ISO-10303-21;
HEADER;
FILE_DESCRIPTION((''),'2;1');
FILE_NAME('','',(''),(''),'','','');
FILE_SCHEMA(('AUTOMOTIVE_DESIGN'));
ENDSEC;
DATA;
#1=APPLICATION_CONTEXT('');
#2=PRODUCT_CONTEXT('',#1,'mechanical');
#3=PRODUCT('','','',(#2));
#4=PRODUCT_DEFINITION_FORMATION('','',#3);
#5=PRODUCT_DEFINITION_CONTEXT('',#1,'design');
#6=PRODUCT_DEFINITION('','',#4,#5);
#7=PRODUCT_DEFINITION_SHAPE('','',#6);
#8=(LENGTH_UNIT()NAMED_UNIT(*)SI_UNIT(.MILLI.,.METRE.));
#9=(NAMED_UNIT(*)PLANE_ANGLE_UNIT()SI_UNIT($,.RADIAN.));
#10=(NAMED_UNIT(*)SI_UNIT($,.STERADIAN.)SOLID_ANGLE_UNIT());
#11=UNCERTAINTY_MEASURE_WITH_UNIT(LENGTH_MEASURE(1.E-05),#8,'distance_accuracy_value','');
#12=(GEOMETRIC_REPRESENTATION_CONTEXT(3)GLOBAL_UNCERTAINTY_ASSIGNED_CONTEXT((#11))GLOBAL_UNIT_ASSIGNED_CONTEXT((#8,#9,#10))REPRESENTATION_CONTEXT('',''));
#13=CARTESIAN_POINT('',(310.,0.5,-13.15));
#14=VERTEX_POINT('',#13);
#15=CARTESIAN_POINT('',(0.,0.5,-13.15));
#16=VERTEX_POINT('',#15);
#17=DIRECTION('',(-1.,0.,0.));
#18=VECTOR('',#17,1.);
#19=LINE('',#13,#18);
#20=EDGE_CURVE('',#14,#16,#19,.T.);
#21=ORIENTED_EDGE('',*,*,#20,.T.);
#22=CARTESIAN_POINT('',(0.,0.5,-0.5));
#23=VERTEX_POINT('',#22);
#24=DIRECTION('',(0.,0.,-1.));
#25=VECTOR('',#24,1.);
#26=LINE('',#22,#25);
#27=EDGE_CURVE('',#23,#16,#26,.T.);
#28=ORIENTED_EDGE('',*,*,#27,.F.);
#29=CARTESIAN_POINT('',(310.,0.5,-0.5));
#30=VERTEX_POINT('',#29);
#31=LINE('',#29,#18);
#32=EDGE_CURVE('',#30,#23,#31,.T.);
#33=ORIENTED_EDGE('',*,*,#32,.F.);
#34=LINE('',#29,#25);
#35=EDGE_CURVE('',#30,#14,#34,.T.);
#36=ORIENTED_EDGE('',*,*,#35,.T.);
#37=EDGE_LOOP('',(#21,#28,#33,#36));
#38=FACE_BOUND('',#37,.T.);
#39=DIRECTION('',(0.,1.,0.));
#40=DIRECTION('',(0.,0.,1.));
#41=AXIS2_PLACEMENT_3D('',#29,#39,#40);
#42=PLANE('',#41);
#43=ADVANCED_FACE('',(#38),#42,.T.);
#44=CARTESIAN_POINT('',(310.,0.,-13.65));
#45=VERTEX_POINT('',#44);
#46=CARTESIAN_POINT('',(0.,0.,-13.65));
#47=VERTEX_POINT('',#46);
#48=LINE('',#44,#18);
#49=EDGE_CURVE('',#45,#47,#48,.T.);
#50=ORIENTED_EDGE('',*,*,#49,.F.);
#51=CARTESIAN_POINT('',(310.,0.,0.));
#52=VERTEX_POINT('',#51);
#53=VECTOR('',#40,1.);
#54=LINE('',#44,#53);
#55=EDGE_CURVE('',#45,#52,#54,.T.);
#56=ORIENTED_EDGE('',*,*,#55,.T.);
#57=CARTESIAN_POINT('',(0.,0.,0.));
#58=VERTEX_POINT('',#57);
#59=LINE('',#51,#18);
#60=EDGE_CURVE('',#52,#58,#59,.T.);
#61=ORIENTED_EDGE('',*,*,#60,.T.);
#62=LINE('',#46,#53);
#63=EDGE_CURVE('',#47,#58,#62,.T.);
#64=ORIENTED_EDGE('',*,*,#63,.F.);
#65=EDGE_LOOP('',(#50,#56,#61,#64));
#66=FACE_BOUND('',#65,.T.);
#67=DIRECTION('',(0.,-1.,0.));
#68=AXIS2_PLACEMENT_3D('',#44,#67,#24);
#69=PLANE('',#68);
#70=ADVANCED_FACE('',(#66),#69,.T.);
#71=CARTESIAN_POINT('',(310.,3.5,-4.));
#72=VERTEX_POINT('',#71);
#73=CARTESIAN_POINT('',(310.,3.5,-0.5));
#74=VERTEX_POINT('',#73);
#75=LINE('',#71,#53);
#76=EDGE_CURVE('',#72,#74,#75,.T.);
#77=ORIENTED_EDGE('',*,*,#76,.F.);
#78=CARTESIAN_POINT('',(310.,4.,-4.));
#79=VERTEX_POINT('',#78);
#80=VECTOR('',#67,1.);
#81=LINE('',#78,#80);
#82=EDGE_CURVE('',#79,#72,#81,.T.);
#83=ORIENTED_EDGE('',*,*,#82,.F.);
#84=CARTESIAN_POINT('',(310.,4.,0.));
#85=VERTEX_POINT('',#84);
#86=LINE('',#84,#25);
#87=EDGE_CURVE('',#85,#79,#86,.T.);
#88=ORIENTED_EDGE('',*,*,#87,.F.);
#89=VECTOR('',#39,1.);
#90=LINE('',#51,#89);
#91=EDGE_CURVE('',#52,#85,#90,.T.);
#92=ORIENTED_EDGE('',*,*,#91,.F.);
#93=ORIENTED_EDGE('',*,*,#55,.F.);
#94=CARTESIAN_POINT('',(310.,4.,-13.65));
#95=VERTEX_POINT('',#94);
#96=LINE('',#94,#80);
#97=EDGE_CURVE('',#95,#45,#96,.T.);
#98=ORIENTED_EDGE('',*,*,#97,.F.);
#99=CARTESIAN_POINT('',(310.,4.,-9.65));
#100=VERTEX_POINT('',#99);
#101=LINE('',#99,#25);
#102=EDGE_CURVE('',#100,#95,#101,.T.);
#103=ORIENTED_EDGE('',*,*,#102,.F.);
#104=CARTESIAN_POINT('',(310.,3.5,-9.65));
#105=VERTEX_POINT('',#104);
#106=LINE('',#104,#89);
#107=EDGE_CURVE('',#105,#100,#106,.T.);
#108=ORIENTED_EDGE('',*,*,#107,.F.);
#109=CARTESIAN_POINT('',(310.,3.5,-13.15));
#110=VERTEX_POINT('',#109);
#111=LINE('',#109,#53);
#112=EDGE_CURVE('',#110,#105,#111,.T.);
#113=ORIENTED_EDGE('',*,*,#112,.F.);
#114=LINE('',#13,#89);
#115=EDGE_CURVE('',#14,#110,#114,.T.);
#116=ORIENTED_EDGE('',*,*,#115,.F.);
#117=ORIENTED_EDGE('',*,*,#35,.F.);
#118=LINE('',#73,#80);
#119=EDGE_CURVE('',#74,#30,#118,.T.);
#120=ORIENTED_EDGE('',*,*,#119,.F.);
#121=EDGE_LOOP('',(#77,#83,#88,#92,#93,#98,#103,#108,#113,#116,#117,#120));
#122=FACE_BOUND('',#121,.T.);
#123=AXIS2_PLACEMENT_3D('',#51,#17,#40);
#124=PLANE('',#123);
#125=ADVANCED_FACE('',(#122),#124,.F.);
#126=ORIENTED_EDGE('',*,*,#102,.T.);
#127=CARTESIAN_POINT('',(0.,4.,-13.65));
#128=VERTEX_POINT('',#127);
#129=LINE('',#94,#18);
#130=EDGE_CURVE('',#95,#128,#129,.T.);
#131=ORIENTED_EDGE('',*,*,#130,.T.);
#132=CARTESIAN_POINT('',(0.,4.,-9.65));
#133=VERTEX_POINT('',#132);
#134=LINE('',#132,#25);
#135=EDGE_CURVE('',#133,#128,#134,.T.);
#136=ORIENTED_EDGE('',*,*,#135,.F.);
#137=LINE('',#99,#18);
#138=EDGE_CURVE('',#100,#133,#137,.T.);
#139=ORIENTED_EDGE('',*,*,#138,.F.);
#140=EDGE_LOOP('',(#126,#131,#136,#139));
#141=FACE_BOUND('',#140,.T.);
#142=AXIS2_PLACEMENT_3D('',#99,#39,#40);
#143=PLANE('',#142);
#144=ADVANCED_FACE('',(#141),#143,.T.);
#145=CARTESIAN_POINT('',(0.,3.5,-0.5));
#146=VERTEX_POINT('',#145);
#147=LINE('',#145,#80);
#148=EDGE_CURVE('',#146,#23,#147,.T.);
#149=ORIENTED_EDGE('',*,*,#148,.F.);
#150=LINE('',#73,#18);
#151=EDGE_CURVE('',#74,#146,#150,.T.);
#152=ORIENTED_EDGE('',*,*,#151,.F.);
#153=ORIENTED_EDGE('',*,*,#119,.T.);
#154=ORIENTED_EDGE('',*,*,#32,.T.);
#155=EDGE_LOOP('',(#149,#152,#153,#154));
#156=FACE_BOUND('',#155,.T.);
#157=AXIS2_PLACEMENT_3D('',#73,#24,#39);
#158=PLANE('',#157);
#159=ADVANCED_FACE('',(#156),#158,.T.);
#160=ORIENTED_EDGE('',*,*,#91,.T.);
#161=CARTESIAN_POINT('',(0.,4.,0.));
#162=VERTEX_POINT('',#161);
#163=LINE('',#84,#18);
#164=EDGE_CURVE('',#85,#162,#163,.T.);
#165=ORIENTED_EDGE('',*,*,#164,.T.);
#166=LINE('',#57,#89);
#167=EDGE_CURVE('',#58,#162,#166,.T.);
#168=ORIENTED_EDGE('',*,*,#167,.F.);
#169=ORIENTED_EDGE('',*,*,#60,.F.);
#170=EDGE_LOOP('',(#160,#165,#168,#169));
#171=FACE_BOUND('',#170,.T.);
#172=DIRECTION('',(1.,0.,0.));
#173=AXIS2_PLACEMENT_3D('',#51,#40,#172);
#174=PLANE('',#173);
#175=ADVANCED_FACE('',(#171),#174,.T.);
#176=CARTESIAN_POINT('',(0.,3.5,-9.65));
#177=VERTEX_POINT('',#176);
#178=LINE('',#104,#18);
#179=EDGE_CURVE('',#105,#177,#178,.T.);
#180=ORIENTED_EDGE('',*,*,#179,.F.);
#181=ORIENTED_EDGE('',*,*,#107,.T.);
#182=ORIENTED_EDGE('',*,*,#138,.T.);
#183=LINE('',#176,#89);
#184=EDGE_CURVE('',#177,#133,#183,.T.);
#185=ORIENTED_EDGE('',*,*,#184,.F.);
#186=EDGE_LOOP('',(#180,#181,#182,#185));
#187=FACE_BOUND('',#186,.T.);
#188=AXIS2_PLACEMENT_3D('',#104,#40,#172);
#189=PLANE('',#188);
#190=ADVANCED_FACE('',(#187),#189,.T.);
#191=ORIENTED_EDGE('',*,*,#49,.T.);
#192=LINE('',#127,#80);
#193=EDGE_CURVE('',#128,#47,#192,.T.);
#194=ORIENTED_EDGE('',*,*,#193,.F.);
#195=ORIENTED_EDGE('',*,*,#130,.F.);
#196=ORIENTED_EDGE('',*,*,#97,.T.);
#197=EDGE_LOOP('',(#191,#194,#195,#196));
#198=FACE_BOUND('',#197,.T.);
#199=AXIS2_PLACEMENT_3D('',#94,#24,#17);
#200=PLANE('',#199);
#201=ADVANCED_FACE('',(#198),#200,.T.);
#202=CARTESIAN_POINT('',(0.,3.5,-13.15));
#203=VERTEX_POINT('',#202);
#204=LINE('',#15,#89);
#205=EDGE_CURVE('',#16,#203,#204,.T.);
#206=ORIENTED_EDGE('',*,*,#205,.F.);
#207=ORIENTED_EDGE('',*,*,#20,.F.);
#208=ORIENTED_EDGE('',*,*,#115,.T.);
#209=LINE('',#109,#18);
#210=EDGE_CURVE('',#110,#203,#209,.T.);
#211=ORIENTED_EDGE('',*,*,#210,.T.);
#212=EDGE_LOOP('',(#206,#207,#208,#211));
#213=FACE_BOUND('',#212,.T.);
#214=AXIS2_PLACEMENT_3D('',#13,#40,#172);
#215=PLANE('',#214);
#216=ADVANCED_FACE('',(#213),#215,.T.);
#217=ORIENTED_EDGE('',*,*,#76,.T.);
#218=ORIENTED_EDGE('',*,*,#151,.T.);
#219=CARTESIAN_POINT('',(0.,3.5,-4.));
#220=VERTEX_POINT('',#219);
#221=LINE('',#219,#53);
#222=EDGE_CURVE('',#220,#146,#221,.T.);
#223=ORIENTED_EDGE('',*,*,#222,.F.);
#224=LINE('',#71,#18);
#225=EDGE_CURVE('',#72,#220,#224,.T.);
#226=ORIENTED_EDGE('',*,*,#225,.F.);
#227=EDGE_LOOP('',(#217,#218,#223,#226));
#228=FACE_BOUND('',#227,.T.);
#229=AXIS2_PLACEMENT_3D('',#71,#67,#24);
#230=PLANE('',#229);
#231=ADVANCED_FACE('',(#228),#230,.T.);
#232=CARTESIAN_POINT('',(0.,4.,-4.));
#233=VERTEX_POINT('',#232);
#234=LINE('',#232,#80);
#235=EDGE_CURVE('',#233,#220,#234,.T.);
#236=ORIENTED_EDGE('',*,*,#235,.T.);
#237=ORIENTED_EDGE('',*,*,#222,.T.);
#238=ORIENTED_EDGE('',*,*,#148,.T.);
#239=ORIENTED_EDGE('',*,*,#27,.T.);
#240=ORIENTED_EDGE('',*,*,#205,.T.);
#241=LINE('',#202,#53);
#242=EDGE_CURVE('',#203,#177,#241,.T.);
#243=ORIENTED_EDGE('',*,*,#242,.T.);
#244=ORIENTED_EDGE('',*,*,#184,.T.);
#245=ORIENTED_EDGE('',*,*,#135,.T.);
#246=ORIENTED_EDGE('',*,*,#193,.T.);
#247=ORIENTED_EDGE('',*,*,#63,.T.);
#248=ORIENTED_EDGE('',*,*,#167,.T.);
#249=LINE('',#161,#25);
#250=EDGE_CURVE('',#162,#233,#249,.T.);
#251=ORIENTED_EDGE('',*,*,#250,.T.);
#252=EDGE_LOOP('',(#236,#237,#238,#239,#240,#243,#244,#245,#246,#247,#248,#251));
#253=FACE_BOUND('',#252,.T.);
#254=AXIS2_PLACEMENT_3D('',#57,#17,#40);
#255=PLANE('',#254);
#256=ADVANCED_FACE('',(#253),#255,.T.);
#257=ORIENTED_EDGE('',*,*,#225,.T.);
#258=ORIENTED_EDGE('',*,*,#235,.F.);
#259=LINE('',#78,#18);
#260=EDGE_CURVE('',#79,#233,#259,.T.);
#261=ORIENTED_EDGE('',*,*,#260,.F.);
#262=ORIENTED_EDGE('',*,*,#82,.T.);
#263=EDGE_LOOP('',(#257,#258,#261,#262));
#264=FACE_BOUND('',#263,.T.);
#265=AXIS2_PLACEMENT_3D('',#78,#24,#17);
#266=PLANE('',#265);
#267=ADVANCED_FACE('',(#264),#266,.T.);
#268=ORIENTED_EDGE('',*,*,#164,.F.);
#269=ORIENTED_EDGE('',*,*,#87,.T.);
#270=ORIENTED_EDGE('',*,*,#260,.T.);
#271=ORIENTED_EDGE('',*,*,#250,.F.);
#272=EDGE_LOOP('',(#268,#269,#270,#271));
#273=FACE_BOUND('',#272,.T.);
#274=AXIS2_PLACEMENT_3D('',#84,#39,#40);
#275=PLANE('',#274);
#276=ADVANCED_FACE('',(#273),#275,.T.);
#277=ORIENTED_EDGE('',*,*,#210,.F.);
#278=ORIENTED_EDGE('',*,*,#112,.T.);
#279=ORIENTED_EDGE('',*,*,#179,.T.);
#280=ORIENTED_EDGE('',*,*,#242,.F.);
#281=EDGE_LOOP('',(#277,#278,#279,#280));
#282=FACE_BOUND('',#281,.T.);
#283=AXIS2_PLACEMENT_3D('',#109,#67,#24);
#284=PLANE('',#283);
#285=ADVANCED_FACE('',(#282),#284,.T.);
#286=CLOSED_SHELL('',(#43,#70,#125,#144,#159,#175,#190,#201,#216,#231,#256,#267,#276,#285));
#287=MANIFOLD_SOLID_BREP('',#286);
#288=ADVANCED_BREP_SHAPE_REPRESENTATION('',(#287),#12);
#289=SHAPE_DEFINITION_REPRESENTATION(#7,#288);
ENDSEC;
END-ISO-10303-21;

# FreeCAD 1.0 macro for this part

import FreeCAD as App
import Part
import Sketcher
from FreeCAD import Vector
Q = App.Units.Quantity

doc = App.newDocument("Part")
params = doc.addObject("Spreadsheet::Sheet", "Params")
for row, (alias, value) in enumerate([
    ("sketch1_width", "4 mm"),
    ("sketch1_width2", "3 mm"),
    ("sketch1_width3", "0.5 mm"),
    ("sketch1_height", "3.5 mm"),
    ("sketch1_height2", "12.65 mm"),
    ("pad1_length", "310 mm"),
], start=1):
    params.set(f"A{row}", alias)
    params.set(f"B{row}", "=" + value)
    params.setAlias(f"B{row}", alias)

body = doc.addObject("PartDesign::Body", "Body")

# Sketch on YZ plane
sketch1 = body.newObject("Sketcher::SketchObject", "Sketch")
sketch1.AttachmentSupport = (doc.getObject("YZ_Plane"), [""])
sketch1.MapMode = "FlatFace"
sketch1.addGeometry([
    Part.LineSegment(Vector(0, 0, 0), Vector(4, 0, 0)),  # 0
    Part.LineSegment(Vector(4, 0, 0), Vector(4, -4, 0)),  # 1
    Part.LineSegment(Vector(4, -4, 0), Vector(3.5, -4, 0)),  # 2
    Part.LineSegment(Vector(3.5, -4, 0), Vector(3.5, -0.5, 0)),  # 3
    Part.LineSegment(Vector(3.5, -0.5, 0), Vector(0.5, -0.5, 0)),  # 4
    Part.LineSegment(Vector(0.5, -0.5, 0), Vector(0.5, -13.2, 0)),  # 5
    Part.LineSegment(Vector(0.5, -13.2, 0), Vector(3.5, -13.2, 0)),  # 6
    Part.LineSegment(Vector(3.5, -13.2, 0), Vector(3.5, -9.7, 0)),  # 7
    Part.LineSegment(Vector(3.5, -9.7, 0), Vector(4, -9.7, 0)),  # 8
    Part.LineSegment(Vector(4, -9.7, 0), Vector(4, -13.7, 0)),  # 9
    Part.LineSegment(Vector(4, -13.7, 0), Vector(0, -13.7, 0)),  # 10
    Part.LineSegment(Vector(0, -13.7, 0), Vector(0, 0, 0)),  # 11
], False)
sketch1.addConstraint([
    Sketcher.Constraint("Coincident", 0, 2, 1, 1),
    Sketcher.Constraint("Coincident", 1, 2, 2, 1),
    Sketcher.Constraint("Coincident", 2, 2, 3, 1),
    Sketcher.Constraint("Coincident", 3, 2, 4, 1),
    Sketcher.Constraint("Coincident", 4, 2, 5, 1),
    Sketcher.Constraint("Coincident", 5, 2, 6, 1),
    Sketcher.Constraint("Coincident", 6, 2, 7, 1),
    Sketcher.Constraint("Coincident", 7, 2, 8, 1),
    Sketcher.Constraint("Coincident", 8, 2, 9, 1),
    Sketcher.Constraint("Coincident", 9, 2, 10, 1),
    Sketcher.Constraint("Coincident", 10, 2, 11, 1),
    Sketcher.Constraint("Coincident", 11, 2, 0, 1),
    Sketcher.Constraint("Horizontal", 0),
    Sketcher.Constraint("Vertical", 1),
    Sketcher.Constraint("Horizontal", 2),
    Sketcher.Constraint("Vertical", 3),
    Sketcher.Constraint("Horizontal", 4),
    Sketcher.Constraint("Vertical", 5),
    Sketcher.Constraint("Horizontal", 6),
    Sketcher.Constraint("Vertical", 7),
    Sketcher.Constraint("Horizontal", 8),
    Sketcher.Constraint("Vertical", 9),
    Sketcher.Constraint("Horizontal", 10),
    Sketcher.Constraint("Vertical", 11),
    Sketcher.Constraint("Coincident", 11, 2, -1, 1),
    Sketcher.Constraint("Vertical", 3, 2, 6, 2),
    Sketcher.Constraint("Vertical", 1, 2, 8, 2),
    Sketcher.Constraint("Equal", 10, 1),
    Sketcher.Constraint("Equal", 3, 7),
    Sketcher.Constraint("Equal", 1, 9),
    Sketcher.Constraint("DistanceX", 0, 1, 0, 2, Q("4 mm")),
    Sketcher.Constraint("DistanceX", 4, 2, 4, 1, Q("3 mm")),
    Sketcher.Constraint("DistanceX", 2, 2, 2, 1, Q("0.5 mm")),
    Sketcher.Constraint("DistanceY", 3, 1, 3, 2, Q("3.5 mm")),
    Sketcher.Constraint("DistanceY", 5, 2, 5, 1, Q("12.65 mm")),
])
sketch1.setExpression("Constraints[30]", "Params.sketch1_width")
sketch1.setExpression("Constraints[31]", "Params.sketch1_width2")
sketch1.setExpression("Constraints[32]", "Params.sketch1_width3")
sketch1.setExpression("Constraints[33]", "Params.sketch1_height")
sketch1.setExpression("Constraints[34]", "Params.sketch1_height2")
pad1 = body.newObject("PartDesign::Pad", "Pad")
pad1.Profile = sketch1
pad1.setExpression("Length", "Params.pad1_length")

doc.recompute()
